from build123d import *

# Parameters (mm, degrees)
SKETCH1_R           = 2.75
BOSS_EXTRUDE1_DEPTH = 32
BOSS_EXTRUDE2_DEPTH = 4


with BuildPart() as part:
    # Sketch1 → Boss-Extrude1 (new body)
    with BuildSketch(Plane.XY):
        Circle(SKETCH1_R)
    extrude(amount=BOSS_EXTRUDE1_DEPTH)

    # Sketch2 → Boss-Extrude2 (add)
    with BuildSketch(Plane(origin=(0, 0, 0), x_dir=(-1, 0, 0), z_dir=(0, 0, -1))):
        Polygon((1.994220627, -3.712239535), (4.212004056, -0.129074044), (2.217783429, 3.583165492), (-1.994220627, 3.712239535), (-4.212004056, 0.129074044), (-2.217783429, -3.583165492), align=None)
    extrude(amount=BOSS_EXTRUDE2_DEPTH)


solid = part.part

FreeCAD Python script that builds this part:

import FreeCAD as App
import Part
import Sketcher


def add_polygon(sketch, points):
    """Adds a closed chain of lines whose ends are joined by coincident constraints."""
    first, n = sketch.GeometryCount, len(points)
    for a, b in zip(points, points[1:] + points[:1]):
        sketch.addGeometry(Part.LineSegment(App.Vector(*a, 0), App.Vector(*b, 0)), False)
    for i in range(n):
        sketch.addConstraint(Sketcher.Constraint("Coincident", first + i, 2, first + (i + 1) % n, 1))

doc = App.newDocument("Part")
body = doc.addObject("PartDesign::Body", "Body")

sketch1 = body.newObject("Sketcher::SketchObject", "Sketch")
sketch1.AttachmentSupport = (doc.getObject("XY_Plane"), [""])
sketch1.MapMode = "FlatFace"
sketch1.addGeometry(Part.Circle(App.Vector(0, 0, 0), App.Vector(0, 0, 1), 2.8), False)
sketch1.addConstraint(Sketcher.Constraint("Coincident", 0, 3, -1, 1))
sketch1.addConstraint(Sketcher.Constraint("Diameter", 0, 5.5))
pad1 = body.newObject("PartDesign::Pad", "Pad")
pad1.Profile = sketch1
pad1.Length = 32

sketch2 = body.newObject("Sketcher::SketchObject", "Sketch001")
sketch2.AttachmentSupport = (doc.getObject("XY_Plane"), [""])
sketch2.MapMode = "FlatFace"
add_polygon(sketch2, [(-2, -3.7), (-4.2, -0.1), (-2.2, 3.6), (2, 3.7), (4.2, 0.1), (2.2, -3.6)])
sketch2.addConstraint(Sketcher.Constraint("Symmetric", 0, 2, 3, 2, -1, 1))
sketch2.addConstraint(Sketcher.Constraint("Symmetric", 1, 2, 4, 2, -1, 1))
sketch2.addConstraint(Sketcher.Constraint("Symmetric", 2, 2, 5, 2, -1, 1))
sketch2.addConstraint(Sketcher.Constraint("Equal", 0, 1))
sketch2.addConstraint(Sketcher.Constraint("Equal", 1, 2))
sketch2.addConstraint(Sketcher.Constraint("Distance", 0, 4.213981))
sketch2.addConstraint(Sketcher.Constraint("DistanceX", -1, 1, 2, 2, 1.994221))
sketch2.addConstraint(Sketcher.Constraint("DistanceY", -1, 1, 2, 2, 3.71224))
sketch2.addConstraint(Sketcher.Constraint("DistanceX", 0, 2, 1, 2, 1.994221))
pad2 = body.newObject("PartDesign::Pad", "Pad001")
pad2.Profile = sketch2
pad2.Length = 4
pad2.Reversed = True

doc.recompute()
